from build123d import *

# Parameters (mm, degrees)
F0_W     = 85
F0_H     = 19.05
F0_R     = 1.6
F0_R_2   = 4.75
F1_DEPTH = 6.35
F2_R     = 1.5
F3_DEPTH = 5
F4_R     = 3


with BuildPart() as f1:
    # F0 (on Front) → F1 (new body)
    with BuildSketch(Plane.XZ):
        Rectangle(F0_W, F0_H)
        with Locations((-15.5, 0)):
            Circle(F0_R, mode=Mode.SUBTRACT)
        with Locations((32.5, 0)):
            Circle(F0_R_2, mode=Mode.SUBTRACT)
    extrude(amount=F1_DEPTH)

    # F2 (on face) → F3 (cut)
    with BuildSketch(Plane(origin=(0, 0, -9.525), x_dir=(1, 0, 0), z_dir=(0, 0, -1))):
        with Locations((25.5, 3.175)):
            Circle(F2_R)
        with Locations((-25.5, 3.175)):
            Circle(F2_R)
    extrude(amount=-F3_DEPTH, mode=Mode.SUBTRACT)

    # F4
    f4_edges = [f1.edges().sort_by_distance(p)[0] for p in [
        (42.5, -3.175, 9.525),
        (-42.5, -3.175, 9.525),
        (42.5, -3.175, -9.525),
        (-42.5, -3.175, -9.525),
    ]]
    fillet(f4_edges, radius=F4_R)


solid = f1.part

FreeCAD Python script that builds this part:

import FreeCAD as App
import Part
import Sketcher
from FreeCAD import Vector


def edges_at(feature, points):
    """Names of the edges that pass closest to the given points."""
    edges = feature.Shape.Edges
    near = lambda p: min(range(len(edges)), key=lambda i: edges[i].distToShape(Part.Vertex(*p))[0])
    return sorted({f"Edge{near(p) + 1}" for p in points})

doc = App.newDocument("Part")
body = doc.addObject("PartDesign::Body", "Body")

sketch1 = body.newObject("Sketcher::SketchObject", "Sketch")
sketch1.AttachmentSupport = (doc.getObject("XZ_Plane"), [""])
sketch1.MapMode = "FlatFace"
sketch1.addGeometry(Part.LineSegment(Vector(-42.5, 9.5, 0), Vector(-42.5, -9.5, 0)), False)
sketch1.addGeometry(Part.LineSegment(Vector(-42.5, -9.5, 0), Vector(42.5, -9.5, 0)), False)
sketch1.addGeometry(Part.LineSegment(Vector(42.5, -9.5, 0), Vector(42.5, 9.5, 0)), False)
sketch1.addGeometry(Part.LineSegment(Vector(42.5, 9.5, 0), Vector(-42.5, 9.5, 0)), False)
sketch1.addGeometry(Part.Circle(Vector(-15.5, 0, 0), Vector(0, 0, 1), 1.6), False)
sketch1.addGeometry(Part.Circle(Vector(32.5, 0, 0), Vector(0, 0, 1), 4.8), False)
sketch1.addConstraint(Sketcher.Constraint("Coincident", 0, 2, 1, 1))
sketch1.addConstraint(Sketcher.Constraint("Coincident", 1, 2, 2, 1))
sketch1.addConstraint(Sketcher.Constraint("Coincident", 2, 2, 3, 1))
sketch1.addConstraint(Sketcher.Constraint("Coincident", 3, 2, 0, 1))
sketch1.addConstraint(Sketcher.Constraint("Vertical", 0))
sketch1.addConstraint(Sketcher.Constraint("Horizontal", 1))
sketch1.addConstraint(Sketcher.Constraint("Vertical", 2))
sketch1.addConstraint(Sketcher.Constraint("Horizontal", 3))
sketch1.addConstraint(Sketcher.Constraint("Symmetric", 0, 2, 2, 2, -1, 1))
sketch1.addConstraint(Sketcher.Constraint("PointOnObject", 4, 3, -1))
sketch1.addConstraint(Sketcher.Constraint("PointOnObject", 5, 3, -1))
sketch1.addConstraint(Sketcher.Constraint("Diameter", 4, 3.2))
sketch1.addConstraint(Sketcher.Constraint("Diameter", 5, 9.5))
sketch1.addConstraint(Sketcher.Constraint("DistanceX", 1, 1, 1, 2, 85.0))
sketch1.addConstraint(Sketcher.Constraint("DistanceX", 4, 3, 5, 3, 48.0))
sketch1.addConstraint(Sketcher.Constraint("DistanceX", 0, 2, 4, 3, 27.0))
sketch1.addConstraint(Sketcher.Constraint("DistanceY", 0, 2, 0, 1, 19.05))
pad1 = body.newObject("PartDesign::Pad", "Pad")
pad1.Profile = sketch1
pad1.Length = 6.35

sketch2 = body.newObject("Sketcher::SketchObject", "Sketch001")
sketch2.AttachmentSupport = (doc.getObject("XY_Plane"), [""])
sketch2.MapMode = "FlatFace"
sketch2.AttachmentOffset = App.Placement(Vector(0, 0, -9.525), App.Rotation())
sketch2.addGeometry(Part.Circle(Vector(25.5, -3.2, 0), Vector(0, 0, 1), 1.5), False)
sketch2.addGeometry(Part.Circle(Vector(-25.5, -3.2, 0), Vector(0, 0, 1), 1.5), False)
sketch2.addConstraint(Sketcher.Constraint("Equal", 0, 1))
sketch2.addConstraint(Sketcher.Constraint("Symmetric", 0, 3, 1, 3, -2))
sketch2.addConstraint(Sketcher.Constraint("Diameter", 0, 3.0))
sketch2.addConstraint(Sketcher.Constraint("DistanceX", 1, 3, 0, 3, 51.0))
sketch2.addConstraint(Sketcher.Constraint("DistanceY", 0, 3, -1, 1, 3.175))
pocket1 = body.newObject("PartDesign::Pocket", "Pocket")
pocket1.Profile = sketch2
pocket1.Length = 5
pocket1.Reversed = True
doc.recompute()

fillet = body.newObject("PartDesign::Fillet", "Fillet")
fillet.Base = (pocket1, edges_at(pocket1, [
    (42.5, -3.175, 9.525),
    (-42.5, -3.175, 9.525),
    (42.5, -3.175, -9.525),
    (-42.5, -3.175, -9.525),
]))
fillet.Radius = 3

doc.recompute()
